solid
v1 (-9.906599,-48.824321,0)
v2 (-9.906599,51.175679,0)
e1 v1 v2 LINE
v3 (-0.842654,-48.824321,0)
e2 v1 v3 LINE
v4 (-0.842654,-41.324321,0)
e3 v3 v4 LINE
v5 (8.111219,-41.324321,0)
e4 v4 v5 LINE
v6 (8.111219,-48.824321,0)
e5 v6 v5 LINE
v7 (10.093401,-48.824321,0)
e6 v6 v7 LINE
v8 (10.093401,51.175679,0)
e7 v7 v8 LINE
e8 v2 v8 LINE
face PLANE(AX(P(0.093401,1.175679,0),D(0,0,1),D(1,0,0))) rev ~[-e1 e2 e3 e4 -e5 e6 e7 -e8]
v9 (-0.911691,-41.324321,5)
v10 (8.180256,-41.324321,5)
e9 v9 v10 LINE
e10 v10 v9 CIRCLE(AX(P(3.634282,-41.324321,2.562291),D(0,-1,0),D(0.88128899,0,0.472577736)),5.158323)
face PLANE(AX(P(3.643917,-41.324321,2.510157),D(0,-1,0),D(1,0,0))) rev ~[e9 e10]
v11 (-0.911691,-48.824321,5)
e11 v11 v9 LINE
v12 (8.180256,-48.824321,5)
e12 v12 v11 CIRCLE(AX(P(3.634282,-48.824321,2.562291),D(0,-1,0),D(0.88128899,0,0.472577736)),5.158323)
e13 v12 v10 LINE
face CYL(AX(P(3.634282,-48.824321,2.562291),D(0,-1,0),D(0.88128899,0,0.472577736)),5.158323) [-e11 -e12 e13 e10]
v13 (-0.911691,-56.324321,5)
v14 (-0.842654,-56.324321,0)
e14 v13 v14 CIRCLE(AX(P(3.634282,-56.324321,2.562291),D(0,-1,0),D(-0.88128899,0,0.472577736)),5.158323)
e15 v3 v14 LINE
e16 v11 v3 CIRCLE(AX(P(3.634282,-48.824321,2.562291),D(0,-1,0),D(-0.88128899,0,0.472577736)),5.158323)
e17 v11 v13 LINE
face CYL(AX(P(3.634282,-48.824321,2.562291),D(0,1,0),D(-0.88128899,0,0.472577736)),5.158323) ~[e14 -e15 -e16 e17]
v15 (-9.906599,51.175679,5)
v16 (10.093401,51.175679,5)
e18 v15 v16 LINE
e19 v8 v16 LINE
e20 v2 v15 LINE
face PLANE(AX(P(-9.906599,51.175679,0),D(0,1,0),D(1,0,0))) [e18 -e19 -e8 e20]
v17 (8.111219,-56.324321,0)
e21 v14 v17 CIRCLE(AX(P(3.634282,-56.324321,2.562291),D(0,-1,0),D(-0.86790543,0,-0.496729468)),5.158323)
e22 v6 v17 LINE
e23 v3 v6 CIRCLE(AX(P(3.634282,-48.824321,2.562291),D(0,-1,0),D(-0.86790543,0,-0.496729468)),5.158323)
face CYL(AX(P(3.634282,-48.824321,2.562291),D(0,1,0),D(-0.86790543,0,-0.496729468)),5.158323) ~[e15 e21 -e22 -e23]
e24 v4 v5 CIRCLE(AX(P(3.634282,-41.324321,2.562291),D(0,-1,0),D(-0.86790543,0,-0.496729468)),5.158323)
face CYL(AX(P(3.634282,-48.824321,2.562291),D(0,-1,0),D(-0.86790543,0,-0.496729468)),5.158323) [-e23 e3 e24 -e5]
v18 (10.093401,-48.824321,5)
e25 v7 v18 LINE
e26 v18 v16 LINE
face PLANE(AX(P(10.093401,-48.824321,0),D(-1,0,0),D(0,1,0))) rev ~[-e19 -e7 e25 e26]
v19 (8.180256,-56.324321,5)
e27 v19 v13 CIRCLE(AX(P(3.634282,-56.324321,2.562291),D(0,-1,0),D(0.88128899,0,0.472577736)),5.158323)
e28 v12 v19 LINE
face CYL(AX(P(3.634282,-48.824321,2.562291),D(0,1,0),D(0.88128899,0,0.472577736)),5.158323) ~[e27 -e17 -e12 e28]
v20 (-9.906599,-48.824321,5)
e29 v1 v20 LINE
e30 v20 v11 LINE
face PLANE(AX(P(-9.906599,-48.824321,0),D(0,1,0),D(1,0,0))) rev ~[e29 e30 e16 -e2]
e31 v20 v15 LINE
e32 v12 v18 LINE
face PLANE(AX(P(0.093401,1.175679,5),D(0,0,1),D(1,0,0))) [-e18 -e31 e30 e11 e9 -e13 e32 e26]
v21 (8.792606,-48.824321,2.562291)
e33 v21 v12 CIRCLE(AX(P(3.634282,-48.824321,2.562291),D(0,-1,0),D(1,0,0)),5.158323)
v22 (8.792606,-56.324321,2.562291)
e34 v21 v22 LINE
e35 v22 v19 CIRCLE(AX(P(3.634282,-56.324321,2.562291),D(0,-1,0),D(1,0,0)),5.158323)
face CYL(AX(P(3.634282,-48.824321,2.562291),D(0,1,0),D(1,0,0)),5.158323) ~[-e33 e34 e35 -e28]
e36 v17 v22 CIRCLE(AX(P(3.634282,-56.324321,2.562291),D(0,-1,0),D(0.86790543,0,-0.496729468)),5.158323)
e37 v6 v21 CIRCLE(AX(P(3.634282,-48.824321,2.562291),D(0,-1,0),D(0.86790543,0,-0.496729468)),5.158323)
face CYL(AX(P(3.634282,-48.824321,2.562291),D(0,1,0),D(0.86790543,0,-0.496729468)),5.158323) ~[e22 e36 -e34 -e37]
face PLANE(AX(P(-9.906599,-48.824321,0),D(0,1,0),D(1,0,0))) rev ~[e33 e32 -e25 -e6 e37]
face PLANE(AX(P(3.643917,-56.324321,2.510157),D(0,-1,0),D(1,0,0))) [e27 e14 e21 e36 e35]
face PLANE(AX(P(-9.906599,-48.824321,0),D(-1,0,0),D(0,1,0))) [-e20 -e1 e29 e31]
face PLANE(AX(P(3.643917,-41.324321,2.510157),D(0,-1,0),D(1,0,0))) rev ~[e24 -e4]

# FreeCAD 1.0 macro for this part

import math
import FreeCAD as App
import Part
import Sketcher

V = App.Vector
Q = App.Units.Quantity

doc = App.newDocument("Part")
body = doc.addObject("PartDesign::Body", "Body")

sketch1 = body.newObject("Sketcher::SketchObject", "Sketch")
sketch1.AttachmentSupport = (doc.getObject("XY_Plane"), [""])
sketch1.MapMode = "FlatFace"
sketch1.addGeometry([
    Part.LineSegment(V(-10, 51, 0), V(-10, -49, 0)),
    Part.LineSegment(V(-10, -49, 0), V(10, -49, 0)),
    Part.LineSegment(V(10, -49, 0), V(10, 51, 0)),
    Part.LineSegment(V(10, 51, 0), V(-10, 51, 0)),
], False)
sketch1.addConstraint([
    Sketcher.Constraint("Coincident", 0, 2, 1, 1),
    Sketcher.Constraint("Coincident", 1, 2, 2, 1),
    Sketcher.Constraint("Coincident", 2, 2, 3, 1),
    Sketcher.Constraint("Coincident", 3, 2, 0, 1),
    Sketcher.Constraint("Vertical", 0),
    Sketcher.Constraint("Horizontal", 1),
    Sketcher.Constraint("Vertical", 2),
    Sketcher.Constraint("Horizontal", 3),
    Sketcher.Constraint("DistanceX", 1, 1, 1, 2, Q("20 mm")),
    Sketcher.Constraint("DistanceY", 0, 2, 0, 1, Q("100 mm")),
    Sketcher.Constraint("DistanceX", 0, 2, -1, 1, Q("9.906599 mm")),
    Sketcher.Constraint("DistanceY", 0, 2, -1, 1, Q("48.824321 mm")),
])
pad1 = body.newObject("PartDesign::Pad", "Pad")
pad1.Profile = sketch1
pad1.Length = 5

sketch2 = body.newObject("Sketcher::SketchObject", "Sketch001")
sketch2.AttachmentSupport = (doc.getObject("XZ_Plane"), [""])
sketch2.MapMode = "FlatFace"
sketch2.AttachmentOffset = App.Placement(V(0, 0, 48.824321), App.Rotation())
sketch2.addGeometry([
    Part.ArcOfCircle(Part.Circle(V(3.6, 2.6, 0), V(0, 0, 1), 5.2), math.radians(-30), math.radians(0)),
    Part.ArcOfCircle(Part.Circle(V(3.6, 2.6, 0), V(0, 0, 1), 5.2), math.radians(0), math.radians(28)),
    Part.ArcOfCircle(Part.Circle(V(3.6, 2.6, 0), V(0, 0, 1), 5.2), math.radians(28), math.radians(152)),
    Part.ArcOfCircle(Part.Circle(V(3.6, 2.6, 0), V(0, 0, 1), 5.2), math.radians(152), math.radians(210)),
    Part.ArcOfCircle(Part.Circle(V(3.6, 2.6, 0), V(0, 0, 1), 5.2), math.radians(-150), math.radians(-30)),
], False)
sketch2.addConstraint([
    Sketcher.Constraint("Tangent", 0, 2, 1, 1),
    Sketcher.Constraint("Tangent", 1, 2, 2, 1),
    Sketcher.Constraint("Tangent", 2, 2, 3, 1),
    Sketcher.Constraint("Tangent", 3, 2, 4, 1),
    Sketcher.Constraint("Tangent", 4, 2, 0, 1),
    Sketcher.Constraint("Coincident", 2, 3, 0, 3),
    Sketcher.Constraint("PointOnObject", 3, 2, -1),
    Sketcher.Constraint("PointOnObject", 4, 2, -1),
    Sketcher.Constraint("Horizontal", 4, 3, 0, 2),
    Sketcher.Constraint("Horizontal", 1, 2, 2, 2),
    Sketcher.Constraint("DistanceY", -1, 1, 1, 2, Q("5 mm")),
    Sketcher.Constraint("Radius", 0, Q("5.158323 mm")),
    Sketcher.Constraint("DistanceY", -1, 1, 0, 3, Q("2.562291 mm")),
    Sketcher.Constraint("DistanceX", 2, 2, -1, 1, Q("0.911691 mm")),
])
pad2 = body.newObject("PartDesign::Pad", "Pad001")
pad2.Profile = sketch2
pad2.Length = 15
pad2.Midplane = True

doc.recompute()
